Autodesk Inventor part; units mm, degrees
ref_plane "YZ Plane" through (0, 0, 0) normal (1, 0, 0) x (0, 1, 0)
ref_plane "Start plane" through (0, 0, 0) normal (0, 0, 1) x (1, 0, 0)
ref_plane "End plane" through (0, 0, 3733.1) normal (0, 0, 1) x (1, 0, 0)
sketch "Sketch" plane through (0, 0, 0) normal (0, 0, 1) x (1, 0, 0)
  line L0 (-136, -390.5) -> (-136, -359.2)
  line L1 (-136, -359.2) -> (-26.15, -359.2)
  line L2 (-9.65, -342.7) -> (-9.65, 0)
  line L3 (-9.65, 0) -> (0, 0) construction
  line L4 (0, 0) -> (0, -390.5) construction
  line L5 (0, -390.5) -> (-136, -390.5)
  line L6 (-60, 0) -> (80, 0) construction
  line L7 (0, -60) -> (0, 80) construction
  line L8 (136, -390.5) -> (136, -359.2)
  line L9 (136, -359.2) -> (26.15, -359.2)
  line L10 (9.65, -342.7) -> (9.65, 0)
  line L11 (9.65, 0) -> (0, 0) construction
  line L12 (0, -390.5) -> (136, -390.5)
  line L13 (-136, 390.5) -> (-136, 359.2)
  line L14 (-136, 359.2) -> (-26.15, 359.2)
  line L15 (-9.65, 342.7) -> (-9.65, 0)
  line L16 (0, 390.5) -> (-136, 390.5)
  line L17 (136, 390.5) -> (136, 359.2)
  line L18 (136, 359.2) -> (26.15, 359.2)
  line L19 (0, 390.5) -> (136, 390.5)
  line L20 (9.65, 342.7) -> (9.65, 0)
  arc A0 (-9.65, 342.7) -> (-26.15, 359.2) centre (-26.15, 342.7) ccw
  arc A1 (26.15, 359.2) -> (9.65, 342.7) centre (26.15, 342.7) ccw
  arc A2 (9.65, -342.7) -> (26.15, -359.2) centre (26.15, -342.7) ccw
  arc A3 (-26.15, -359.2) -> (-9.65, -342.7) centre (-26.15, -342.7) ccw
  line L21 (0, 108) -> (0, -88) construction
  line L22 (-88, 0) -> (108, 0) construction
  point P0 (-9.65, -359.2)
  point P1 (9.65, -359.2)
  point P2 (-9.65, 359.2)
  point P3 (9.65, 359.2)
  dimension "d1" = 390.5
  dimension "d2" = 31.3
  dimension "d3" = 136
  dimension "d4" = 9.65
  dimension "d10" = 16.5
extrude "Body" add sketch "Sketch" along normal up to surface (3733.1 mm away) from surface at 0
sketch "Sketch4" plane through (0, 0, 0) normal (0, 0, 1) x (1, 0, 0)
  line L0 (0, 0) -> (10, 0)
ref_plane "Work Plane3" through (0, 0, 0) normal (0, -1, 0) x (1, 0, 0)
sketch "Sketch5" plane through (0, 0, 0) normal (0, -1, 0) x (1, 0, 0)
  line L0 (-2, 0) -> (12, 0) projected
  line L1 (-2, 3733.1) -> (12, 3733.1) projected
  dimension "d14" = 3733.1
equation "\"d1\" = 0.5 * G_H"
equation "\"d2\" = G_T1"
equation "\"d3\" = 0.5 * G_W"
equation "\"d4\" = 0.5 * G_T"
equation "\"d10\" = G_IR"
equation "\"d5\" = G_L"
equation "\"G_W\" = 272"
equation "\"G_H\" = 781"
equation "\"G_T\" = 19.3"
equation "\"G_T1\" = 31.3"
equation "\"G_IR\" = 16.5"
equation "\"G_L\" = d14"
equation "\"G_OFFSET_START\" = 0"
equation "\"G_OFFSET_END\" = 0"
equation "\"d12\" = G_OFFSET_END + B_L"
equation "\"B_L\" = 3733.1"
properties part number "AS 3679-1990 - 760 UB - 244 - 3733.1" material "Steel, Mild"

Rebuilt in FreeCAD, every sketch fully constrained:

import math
import FreeCAD as App
import Part
import Sketcher
from FreeCAD import Vector

doc = App.newDocument("Part")
body = doc.addObject("PartDesign::Body", "Body")

sketch1 = body.newObject("Sketcher::SketchObject", "Sketch")
sketch1.AttachmentSupport = (doc.getObject("XY_Plane"), [""])
sketch1.MapMode = "FlatFace"
sketch1.addGeometry([
    Part.LineSegment(Vector(-136, -359.2, 0), Vector(-136, -390.5, 0)),
    Part.LineSegment(Vector(-136, -390.5, 0), Vector(136, -390.5, 0)),
    Part.LineSegment(Vector(136, -390.5, 0), Vector(136, -359.2, 0)),
    Part.LineSegment(Vector(136, -359.2, 0), Vector(26.15, -359.2, 0)),
    Part.ArcOfCircle(Part.Circle(Vector(26.15, -342.7, 0), Vector(0, 0, 1), 16.5), math.radians(180), math.radians(270)),
    Part.LineSegment(Vector(9.65, -342.7, 0), Vector(9.65, 342.7, 0)),
    Part.ArcOfCircle(Part.Circle(Vector(26.15, 342.7, 0), Vector(0, 0, 1), 16.5), math.radians(90), math.radians(180)),
    Part.LineSegment(Vector(26.15, 359.2, 0), Vector(136, 359.2, 0)),
    Part.LineSegment(Vector(136, 359.2, 0), Vector(136, 390.5, 0)),
    Part.LineSegment(Vector(136, 390.5, 0), Vector(-136, 390.5, 0)),
    Part.LineSegment(Vector(-136, 390.5, 0), Vector(-136, 359.2, 0)),
    Part.LineSegment(Vector(-136, 359.2, 0), Vector(-26.15, 359.2, 0)),
    Part.ArcOfCircle(Part.Circle(Vector(-26.15, 342.7, 0), Vector(0, 0, 1), 16.5), math.radians(0), math.radians(90)),
    Part.LineSegment(Vector(-9.65, 342.7, 0), Vector(-9.65, -342.7, 0)),
    Part.ArcOfCircle(Part.Circle(Vector(-26.15, -342.7, 0), Vector(0, 0, 1), 16.5), math.radians(-90), math.radians(0)),
    Part.LineSegment(Vector(-26.15, -359.2, 0), Vector(-136, -359.2, 0)),
], False)
sketch1.addConstraint([
    Sketcher.Constraint("Coincident", 0, 2, 1, 1),
    Sketcher.Constraint("Coincident", 1, 2, 2, 1),
    Sketcher.Constraint("Coincident", 2, 2, 3, 1),
    Sketcher.Constraint("Tangent", 3, 2, 4, 2),
    Sketcher.Constraint("Tangent", 4, 1, 5, 1),
    Sketcher.Constraint("Tangent", 5, 2, 6, 2),
    Sketcher.Constraint("Tangent", 6, 1, 7, 1),
    Sketcher.Constraint("Coincident", 7, 2, 8, 1),
    Sketcher.Constraint("Coincident", 8, 2, 9, 1),
    Sketcher.Constraint("Coincident", 9, 2, 10, 1),
    Sketcher.Constraint("Coincident", 10, 2, 11, 1),
    Sketcher.Constraint("Tangent", 11, 2, 12, 2),
    Sketcher.Constraint("Tangent", 12, 1, 13, 1),
    Sketcher.Constraint("Tangent", 13, 2, 14, 2),
    Sketcher.Constraint("Tangent", 14, 1, 15, 1),
    Sketcher.Constraint("Coincident", 15, 2, 0, 1),
    Sketcher.Constraint("Vertical", 0),
    Sketcher.Constraint("Horizontal", 1),
    Sketcher.Constraint("Vertical", 2),
    Sketcher.Constraint("Horizontal", 3),
    Sketcher.Constraint("Vertical", 5),
    Sketcher.Constraint("Horizontal", 7),
    Sketcher.Constraint("Vertical", 8),
    Sketcher.Constraint("Horizontal", 9),
    Sketcher.Constraint("Vertical", 10),
    Sketcher.Constraint("Horizontal", 11),
    Sketcher.Constraint("Vertical", 13),
    Sketcher.Constraint("Horizontal", 15),
    Sketcher.Constraint("Equal", 4, 6),
    Sketcher.Constraint("Equal", 6, 12),
    Sketcher.Constraint("Equal", 12, 14),
    Sketcher.Constraint("Symmetric", 4, 3, 12, 3, -1, 1),
    Sketcher.Constraint("Symmetric", 0, 2, 8, 2, -1, 1),
    Sketcher.Constraint("Symmetric", 7, 2, 10, 2, -2),
    Sketcher.Constraint("Symmetric", 2, 2, 15, 2, -2),
    Sketcher.Constraint("Radius", 4, 16.5),
    Sketcher.Constraint("DistanceY", 0, 2, 0, 1, 31.3),
    Sketcher.Constraint("DistanceX", 0, 2, -1, 1, 136.0),
    Sketcher.Constraint("DistanceY", 0, 2, -1, 1, 390.5),
    Sketcher.Constraint("DistanceX", -1, 1, 4, 1, 9.65),
])
pad1 = body.newObject("PartDesign::Pad", "Pad")
pad1.Profile = sketch1
pad1.Length = 3733.1

doc.recompute()
